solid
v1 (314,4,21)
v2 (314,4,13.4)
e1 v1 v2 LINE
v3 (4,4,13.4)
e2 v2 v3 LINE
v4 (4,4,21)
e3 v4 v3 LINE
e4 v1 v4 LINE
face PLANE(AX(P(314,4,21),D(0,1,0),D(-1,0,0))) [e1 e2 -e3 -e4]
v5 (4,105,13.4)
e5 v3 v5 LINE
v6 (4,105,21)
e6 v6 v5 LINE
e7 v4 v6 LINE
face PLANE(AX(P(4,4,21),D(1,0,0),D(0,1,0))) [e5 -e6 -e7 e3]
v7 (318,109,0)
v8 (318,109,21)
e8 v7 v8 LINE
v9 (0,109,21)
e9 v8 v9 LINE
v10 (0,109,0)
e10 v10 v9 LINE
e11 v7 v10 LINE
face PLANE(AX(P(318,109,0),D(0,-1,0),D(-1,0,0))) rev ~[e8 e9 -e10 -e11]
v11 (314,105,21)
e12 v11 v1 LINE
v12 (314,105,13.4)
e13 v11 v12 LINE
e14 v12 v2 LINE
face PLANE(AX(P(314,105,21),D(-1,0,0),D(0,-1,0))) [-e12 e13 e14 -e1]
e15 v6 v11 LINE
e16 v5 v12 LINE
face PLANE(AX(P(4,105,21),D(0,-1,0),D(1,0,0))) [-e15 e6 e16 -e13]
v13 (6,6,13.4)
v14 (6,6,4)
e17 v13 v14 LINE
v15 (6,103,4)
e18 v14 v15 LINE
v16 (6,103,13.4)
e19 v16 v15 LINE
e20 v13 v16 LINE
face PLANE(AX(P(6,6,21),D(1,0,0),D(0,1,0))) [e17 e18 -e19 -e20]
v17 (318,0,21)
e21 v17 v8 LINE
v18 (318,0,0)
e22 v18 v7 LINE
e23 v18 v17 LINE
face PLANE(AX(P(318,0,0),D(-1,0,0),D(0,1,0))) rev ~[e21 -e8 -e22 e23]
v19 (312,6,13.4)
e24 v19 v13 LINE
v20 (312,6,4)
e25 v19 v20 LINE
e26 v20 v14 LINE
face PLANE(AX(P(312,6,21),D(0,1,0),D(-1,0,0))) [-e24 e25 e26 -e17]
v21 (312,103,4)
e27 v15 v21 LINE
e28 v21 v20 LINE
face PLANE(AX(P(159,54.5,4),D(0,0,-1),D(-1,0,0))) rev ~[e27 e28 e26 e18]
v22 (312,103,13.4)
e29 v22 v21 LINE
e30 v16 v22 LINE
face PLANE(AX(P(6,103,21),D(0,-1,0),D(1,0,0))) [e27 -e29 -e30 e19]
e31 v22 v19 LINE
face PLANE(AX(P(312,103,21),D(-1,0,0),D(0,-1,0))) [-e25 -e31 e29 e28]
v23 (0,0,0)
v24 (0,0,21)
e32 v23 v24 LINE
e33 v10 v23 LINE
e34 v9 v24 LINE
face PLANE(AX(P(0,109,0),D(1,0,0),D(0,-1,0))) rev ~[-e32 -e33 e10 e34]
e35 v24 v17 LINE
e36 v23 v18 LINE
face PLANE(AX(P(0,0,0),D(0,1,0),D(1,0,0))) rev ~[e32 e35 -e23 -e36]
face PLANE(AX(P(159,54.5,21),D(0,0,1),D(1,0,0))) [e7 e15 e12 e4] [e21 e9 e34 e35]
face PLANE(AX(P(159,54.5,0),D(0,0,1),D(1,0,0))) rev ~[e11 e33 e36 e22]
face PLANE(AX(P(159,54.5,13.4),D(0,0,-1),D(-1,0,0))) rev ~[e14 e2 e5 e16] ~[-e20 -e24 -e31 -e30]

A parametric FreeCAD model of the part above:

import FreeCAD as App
import Part
import Sketcher
Q = App.Units.Quantity


def add_polygon(sketch, points):
    """Adds a closed chain of lines whose ends are joined by coincident constraints."""
    first, n = sketch.GeometryCount, len(points)
    for a, b in zip(points, points[1:] + points[:1]):
        sketch.addGeometry(Part.LineSegment(App.Vector(*a, 0), App.Vector(*b, 0)), False)
    for i in range(n):
        sketch.addConstraint(Sketcher.Constraint("Coincident", first + i, 2, first + (i + 1) % n, 1))

doc = App.newDocument("Part")
body = doc.addObject("PartDesign::Body", "Body")

sketch1 = body.newObject("Sketcher::SketchObject", "Sketch")
sketch1.AttachmentSupport = (doc.getObject("XY_Plane"), [""])
sketch1.MapMode = "FlatFace"
add_polygon(sketch1, [(0, 109), (0, 0), (318, 0), (318, 109)])
sketch1.addConstraint([
    Sketcher.Constraint("Vertical", 0),
    Sketcher.Constraint("Horizontal", 1),
    Sketcher.Constraint("Vertical", 2),
    Sketcher.Constraint("Horizontal", 3),
    Sketcher.Constraint("Coincident", 0, 2, -1, 1),
    Sketcher.Constraint("DistanceX", 1, 1, 1, 2, Q("318 mm")),
    Sketcher.Constraint("DistanceY", 0, 2, 0, 1, Q("109 mm")),
])
pad1 = body.newObject("PartDesign::Pad", "Pad")
pad1.Profile = sketch1
pad1.Length = 21

sketch2 = body.newObject("Sketcher::SketchObject", "Sketch001")
sketch2.AttachmentSupport = (doc.getObject("XY_Plane"), [""])
sketch2.MapMode = "FlatFace"
sketch2.AttachmentOffset = App.Placement(App.Vector(0, 0, 21), App.Rotation())
add_polygon(sketch2, [(312, 103), (6, 103), (6, 6), (312, 6)])
sketch2.addConstraint([
    Sketcher.Constraint("Horizontal", 0),
    Sketcher.Constraint("Vertical", 1),
    Sketcher.Constraint("Horizontal", 2),
    Sketcher.Constraint("Vertical", 3),
    Sketcher.Constraint("DistanceX", 0, 2, 0, 1, Q("306 mm")),
    Sketcher.Constraint("DistanceY", 1, 2, 1, 1, Q("97 mm")),
    Sketcher.Constraint("DistanceX", -1, 1, 0, 2, Q("6 mm")),
    Sketcher.Constraint("DistanceY", -1, 1, 0, 2, Q("103 mm")),
])
pocket1 = body.newObject("PartDesign::Pocket", "Pocket")
pocket1.Profile = sketch2
pocket1.Length = 17

sketch3 = body.newObject("Sketcher::SketchObject", "Sketch002")
sketch3.AttachmentSupport = (doc.getObject("XY_Plane"), [""])
sketch3.MapMode = "FlatFace"
sketch3.AttachmentOffset = App.Placement(App.Vector(0, 0, 21), App.Rotation())
add_polygon(sketch3, [(314, 105), (4, 105), (4, 4), (314, 4)])
sketch3.addConstraint([
    Sketcher.Constraint("Horizontal", 0),
    Sketcher.Constraint("Vertical", 1),
    Sketcher.Constraint("Horizontal", 2),
    Sketcher.Constraint("Vertical", 3),
    Sketcher.Constraint("DistanceX", 0, 2, 0, 1, Q("310 mm")),
    Sketcher.Constraint("DistanceY", 1, 2, 1, 1, Q("101 mm")),
    Sketcher.Constraint("DistanceX", -1, 1, 0, 2, Q("4 mm")),
    Sketcher.Constraint("DistanceY", -1, 1, 0, 2, Q("105 mm")),
])
pocket2 = body.newObject("PartDesign::Pocket", "Pocket001")
pocket2.Profile = sketch3
pocket2.Length = 7.6

doc.recompute()
